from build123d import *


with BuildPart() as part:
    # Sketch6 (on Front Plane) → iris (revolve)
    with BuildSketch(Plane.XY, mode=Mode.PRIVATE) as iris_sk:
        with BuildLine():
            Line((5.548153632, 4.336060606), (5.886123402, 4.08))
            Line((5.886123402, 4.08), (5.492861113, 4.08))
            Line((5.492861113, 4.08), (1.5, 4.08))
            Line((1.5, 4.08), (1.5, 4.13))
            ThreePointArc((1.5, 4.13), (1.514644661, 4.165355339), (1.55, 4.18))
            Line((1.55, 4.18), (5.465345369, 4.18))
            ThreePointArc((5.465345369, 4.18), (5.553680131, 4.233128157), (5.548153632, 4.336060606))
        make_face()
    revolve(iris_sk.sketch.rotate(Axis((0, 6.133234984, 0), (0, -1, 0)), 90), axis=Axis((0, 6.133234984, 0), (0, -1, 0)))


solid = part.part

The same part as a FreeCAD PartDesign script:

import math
import FreeCAD as App
import Part
import Sketcher
Q = App.Units.Quantity

doc = App.newDocument("Part")
body = doc.addObject("PartDesign::Body", "Body")

sketch1 = body.newObject("Sketcher::SketchObject", "Sketch")
sketch1.AttachmentSupport = (doc.getObject("XY_Plane"), [""])
sketch1.MapMode = "FlatFace"
sketch1.addGeometry([
    Part.LineSegment(App.Vector(5.886, 4.08, 0), App.Vector(5.548, 4.336, 0)),
    Part.ArcOfCircle(Part.Circle(App.Vector(5.465, 4.28, 0), App.Vector(0, 0, 1), 0.1), math.radians(-90), math.radians(34)),
    Part.LineSegment(App.Vector(5.465, 4.18, 0), App.Vector(1.55, 4.18, 0)),
    Part.ArcOfCircle(Part.Circle(App.Vector(1.55, 4.13, 0), App.Vector(0, 0, 1), 0.05), math.radians(90), math.radians(180)),
    Part.LineSegment(App.Vector(1.5, 4.13, 0), App.Vector(1.5, 4.08, 0)),
    Part.LineSegment(App.Vector(1.5, 4.08, 0), App.Vector(5.886, 4.08, 0)),
], False)
sketch1.addConstraint([
    Sketcher.Constraint("Coincident", 0, 2, 1, 2),
    Sketcher.Constraint("Tangent", 1, 1, 2, 1),
    Sketcher.Constraint("Tangent", 2, 2, 3, 1),
    Sketcher.Constraint("Tangent", 3, 2, 4, 1),
    Sketcher.Constraint("Coincident", 4, 2, 5, 1),
    Sketcher.Constraint("Coincident", 5, 2, 0, 1),
    Sketcher.Constraint("Horizontal", 2),
    Sketcher.Constraint("Vertical", 4),
    Sketcher.Constraint("Horizontal", 5),
    Sketcher.Constraint("Radius", 1, Q("0.1 mm")),
    Sketcher.Constraint("Radius", 3, Q("0.05 mm")),
    Sketcher.Constraint("DistanceY", 4, 2, 4, 1, Q("0.05 mm")),
    Sketcher.Constraint("DistanceX", -1, 1, 3, 2, Q("1.5 mm")),
    Sketcher.Constraint("DistanceY", -1, 1, 1, 3, Q("4.28 mm")),
    Sketcher.Constraint("DistanceX", 2, 2, 2, 1, Q("3.915345 mm")),
    Sketcher.Constraint("DistanceX", 5, 1, 5, 2, Q("4.386123 mm")),
    Sketcher.Constraint("DistanceY", -1, 1, 0, 2, Q("4.336061 mm")),
])
revolution = body.newObject("PartDesign::Revolution", "Revolution")
revolution.Profile = sketch1
revolution.ReferenceAxis = (sketch1, ["V_Axis"])
revolution.Angle = 360

doc.recompute()
